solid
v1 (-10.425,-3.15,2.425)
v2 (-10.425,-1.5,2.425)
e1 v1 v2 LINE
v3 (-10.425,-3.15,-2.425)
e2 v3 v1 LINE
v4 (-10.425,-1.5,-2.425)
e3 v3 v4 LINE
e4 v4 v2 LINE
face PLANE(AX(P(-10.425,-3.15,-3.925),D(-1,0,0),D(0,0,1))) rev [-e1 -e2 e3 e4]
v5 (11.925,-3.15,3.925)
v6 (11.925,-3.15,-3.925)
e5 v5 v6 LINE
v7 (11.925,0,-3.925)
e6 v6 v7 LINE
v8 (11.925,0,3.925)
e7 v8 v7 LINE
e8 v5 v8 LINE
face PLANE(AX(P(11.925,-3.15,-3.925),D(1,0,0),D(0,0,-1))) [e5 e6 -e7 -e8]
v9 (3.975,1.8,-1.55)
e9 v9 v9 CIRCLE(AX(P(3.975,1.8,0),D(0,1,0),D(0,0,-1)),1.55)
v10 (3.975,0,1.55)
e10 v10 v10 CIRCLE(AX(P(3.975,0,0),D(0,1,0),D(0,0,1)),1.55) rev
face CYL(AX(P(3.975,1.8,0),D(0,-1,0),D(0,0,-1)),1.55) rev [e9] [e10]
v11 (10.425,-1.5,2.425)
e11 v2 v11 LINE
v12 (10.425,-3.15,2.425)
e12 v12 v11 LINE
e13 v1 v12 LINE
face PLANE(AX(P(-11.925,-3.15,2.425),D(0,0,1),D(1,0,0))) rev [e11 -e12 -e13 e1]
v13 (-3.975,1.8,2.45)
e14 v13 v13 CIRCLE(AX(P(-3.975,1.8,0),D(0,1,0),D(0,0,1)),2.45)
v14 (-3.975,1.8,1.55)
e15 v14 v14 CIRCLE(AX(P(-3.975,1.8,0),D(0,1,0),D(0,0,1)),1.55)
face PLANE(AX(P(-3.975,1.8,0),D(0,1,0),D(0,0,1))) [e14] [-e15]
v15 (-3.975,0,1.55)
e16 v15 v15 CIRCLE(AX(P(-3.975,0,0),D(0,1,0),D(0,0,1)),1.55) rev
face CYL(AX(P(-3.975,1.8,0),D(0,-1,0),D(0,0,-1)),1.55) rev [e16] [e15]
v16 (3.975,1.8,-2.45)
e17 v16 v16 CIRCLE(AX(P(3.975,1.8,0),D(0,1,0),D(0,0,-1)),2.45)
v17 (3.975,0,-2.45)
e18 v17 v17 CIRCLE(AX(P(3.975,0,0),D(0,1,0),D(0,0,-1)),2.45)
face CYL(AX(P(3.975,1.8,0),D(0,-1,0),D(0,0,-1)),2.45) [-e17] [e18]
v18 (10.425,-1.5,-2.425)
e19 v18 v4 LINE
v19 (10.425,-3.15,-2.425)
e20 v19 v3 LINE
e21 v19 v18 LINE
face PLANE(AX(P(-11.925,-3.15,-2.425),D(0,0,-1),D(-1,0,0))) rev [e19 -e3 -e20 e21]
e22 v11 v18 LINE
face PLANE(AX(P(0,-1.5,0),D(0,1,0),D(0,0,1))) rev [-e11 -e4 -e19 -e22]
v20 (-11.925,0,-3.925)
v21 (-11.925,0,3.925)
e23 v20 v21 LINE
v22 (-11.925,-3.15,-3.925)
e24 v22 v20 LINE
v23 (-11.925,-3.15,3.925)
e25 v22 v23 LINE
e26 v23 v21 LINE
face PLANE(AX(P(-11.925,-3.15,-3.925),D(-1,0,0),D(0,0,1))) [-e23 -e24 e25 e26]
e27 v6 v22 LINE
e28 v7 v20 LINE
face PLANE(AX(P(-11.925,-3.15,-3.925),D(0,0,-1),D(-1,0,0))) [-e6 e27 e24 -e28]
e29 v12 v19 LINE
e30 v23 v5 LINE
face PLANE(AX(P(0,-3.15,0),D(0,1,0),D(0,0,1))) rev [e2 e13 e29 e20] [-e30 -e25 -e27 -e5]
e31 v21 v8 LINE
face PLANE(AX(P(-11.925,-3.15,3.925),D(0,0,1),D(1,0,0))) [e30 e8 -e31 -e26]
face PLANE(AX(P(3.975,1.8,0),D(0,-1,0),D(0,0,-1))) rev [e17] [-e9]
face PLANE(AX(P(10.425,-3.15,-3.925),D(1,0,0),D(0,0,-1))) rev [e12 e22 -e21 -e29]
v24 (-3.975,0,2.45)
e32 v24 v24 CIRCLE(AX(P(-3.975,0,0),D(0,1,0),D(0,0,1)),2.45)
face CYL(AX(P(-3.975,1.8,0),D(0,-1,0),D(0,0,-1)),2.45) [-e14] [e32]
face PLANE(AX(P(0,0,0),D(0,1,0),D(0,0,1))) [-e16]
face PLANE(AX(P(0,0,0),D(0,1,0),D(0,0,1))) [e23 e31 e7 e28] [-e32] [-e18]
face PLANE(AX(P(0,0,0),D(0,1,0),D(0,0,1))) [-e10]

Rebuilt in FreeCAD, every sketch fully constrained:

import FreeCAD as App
import Part
import Sketcher


def faces_at(feature, points):
    """Names of the faces that lie closest to the given points."""
    faces = feature.Shape.Faces
    near = lambda p: min(range(len(faces)), key=lambda i: faces[i].distToShape(Part.Vertex(*p))[0])
    return sorted({f"Face{near(p) + 1}" for p in points})


def add_polygon(sketch, points):
    """Adds a closed chain of lines whose ends are joined by coincident constraints."""
    first, n = sketch.GeometryCount, len(points)
    for a, b in zip(points, points[1:] + points[:1]):
        sketch.addGeometry(Part.LineSegment(App.Vector(*a, 0), App.Vector(*b, 0)), False)
    for i in range(n):
        sketch.addConstraint(Sketcher.Constraint("Coincident", first + i, 2, first + (i + 1) % n, 1))

doc = App.newDocument("Part")
body = doc.addObject("PartDesign::Body", "Body")

sketch1 = body.newObject("Sketcher::SketchObject", "Sketch")
sketch1.AttachmentSupport = (doc.getObject("XZ_Plane"), [""])
sketch1.MapMode = "FlatFace"
add_polygon(sketch1, [(-12, -4), (-12, 4), (12, 4), (12, -4)])
sketch1.addConstraint([
    Sketcher.Constraint("Vertical", 0),
    Sketcher.Constraint("Horizontal", 1),
    Sketcher.Constraint("Vertical", 2),
    Sketcher.Constraint("Horizontal", 3),
    Sketcher.Constraint("Symmetric", 0, 2, 2, 2, -1, 1),
    Sketcher.Constraint("DistanceX", 1, 1, 1, 2, 23.85),
    Sketcher.Constraint("DistanceY", 0, 1, 0, 2, 7.85),
])
pad1 = body.newObject("PartDesign::Pad", "Pad")
pad1.Profile = sketch1
pad1.Length = 3.15
doc.recompute()

thickness = body.newObject("PartDesign::Thickness", "Thickness")
thickness.Base = (pad1, faces_at(pad1, [(0, -3.15, 0)]))
thickness.Value = 1.5
thickness.Reversed = True
thickness.Join = "Intersection"

sketch2 = body.newObject("Sketcher::SketchObject", "Sketch001")
sketch2.AttachmentSupport = (doc.getObject("XZ_Plane"), [""])
sketch2.MapMode = "FlatFace"
sketch2.addGeometry([
    Part.Circle(App.Vector(-4, 0, 0), App.Vector(0, 0, 1), 2.5),
    Part.Circle(App.Vector(-4, 0, 0), App.Vector(0, 0, 1), 1.6),
    Part.Circle(App.Vector(4, 0, 0), App.Vector(0, 0, 1), 2.5),
    Part.Circle(App.Vector(4, 0, 0), App.Vector(0, 0, 1), 1.6),
], False)
sketch2.addConstraint([
    Sketcher.Constraint("Coincident", 1, 3, 0, 3),
    Sketcher.Constraint("Coincident", 3, 3, 2, 3),
    Sketcher.Constraint("Equal", 0, 2),
    Sketcher.Constraint("Equal", 1, 3),
    Sketcher.Constraint("Symmetric", 0, 3, 2, 3, -1, 1),
    Sketcher.Constraint("PointOnObject", 0, 3, -1),
    Sketcher.Constraint("Diameter", 0, 4.9),
    Sketcher.Constraint("Diameter", 1, 3.1),
    Sketcher.Constraint("DistanceX", 0, 3, 2, 3, 7.95),
])
pad2 = body.newObject("PartDesign::Pad", "Pad001")
pad2.Profile = sketch2
pad2.Length = 1.8
pad2.Reversed = True

doc.recompute()
